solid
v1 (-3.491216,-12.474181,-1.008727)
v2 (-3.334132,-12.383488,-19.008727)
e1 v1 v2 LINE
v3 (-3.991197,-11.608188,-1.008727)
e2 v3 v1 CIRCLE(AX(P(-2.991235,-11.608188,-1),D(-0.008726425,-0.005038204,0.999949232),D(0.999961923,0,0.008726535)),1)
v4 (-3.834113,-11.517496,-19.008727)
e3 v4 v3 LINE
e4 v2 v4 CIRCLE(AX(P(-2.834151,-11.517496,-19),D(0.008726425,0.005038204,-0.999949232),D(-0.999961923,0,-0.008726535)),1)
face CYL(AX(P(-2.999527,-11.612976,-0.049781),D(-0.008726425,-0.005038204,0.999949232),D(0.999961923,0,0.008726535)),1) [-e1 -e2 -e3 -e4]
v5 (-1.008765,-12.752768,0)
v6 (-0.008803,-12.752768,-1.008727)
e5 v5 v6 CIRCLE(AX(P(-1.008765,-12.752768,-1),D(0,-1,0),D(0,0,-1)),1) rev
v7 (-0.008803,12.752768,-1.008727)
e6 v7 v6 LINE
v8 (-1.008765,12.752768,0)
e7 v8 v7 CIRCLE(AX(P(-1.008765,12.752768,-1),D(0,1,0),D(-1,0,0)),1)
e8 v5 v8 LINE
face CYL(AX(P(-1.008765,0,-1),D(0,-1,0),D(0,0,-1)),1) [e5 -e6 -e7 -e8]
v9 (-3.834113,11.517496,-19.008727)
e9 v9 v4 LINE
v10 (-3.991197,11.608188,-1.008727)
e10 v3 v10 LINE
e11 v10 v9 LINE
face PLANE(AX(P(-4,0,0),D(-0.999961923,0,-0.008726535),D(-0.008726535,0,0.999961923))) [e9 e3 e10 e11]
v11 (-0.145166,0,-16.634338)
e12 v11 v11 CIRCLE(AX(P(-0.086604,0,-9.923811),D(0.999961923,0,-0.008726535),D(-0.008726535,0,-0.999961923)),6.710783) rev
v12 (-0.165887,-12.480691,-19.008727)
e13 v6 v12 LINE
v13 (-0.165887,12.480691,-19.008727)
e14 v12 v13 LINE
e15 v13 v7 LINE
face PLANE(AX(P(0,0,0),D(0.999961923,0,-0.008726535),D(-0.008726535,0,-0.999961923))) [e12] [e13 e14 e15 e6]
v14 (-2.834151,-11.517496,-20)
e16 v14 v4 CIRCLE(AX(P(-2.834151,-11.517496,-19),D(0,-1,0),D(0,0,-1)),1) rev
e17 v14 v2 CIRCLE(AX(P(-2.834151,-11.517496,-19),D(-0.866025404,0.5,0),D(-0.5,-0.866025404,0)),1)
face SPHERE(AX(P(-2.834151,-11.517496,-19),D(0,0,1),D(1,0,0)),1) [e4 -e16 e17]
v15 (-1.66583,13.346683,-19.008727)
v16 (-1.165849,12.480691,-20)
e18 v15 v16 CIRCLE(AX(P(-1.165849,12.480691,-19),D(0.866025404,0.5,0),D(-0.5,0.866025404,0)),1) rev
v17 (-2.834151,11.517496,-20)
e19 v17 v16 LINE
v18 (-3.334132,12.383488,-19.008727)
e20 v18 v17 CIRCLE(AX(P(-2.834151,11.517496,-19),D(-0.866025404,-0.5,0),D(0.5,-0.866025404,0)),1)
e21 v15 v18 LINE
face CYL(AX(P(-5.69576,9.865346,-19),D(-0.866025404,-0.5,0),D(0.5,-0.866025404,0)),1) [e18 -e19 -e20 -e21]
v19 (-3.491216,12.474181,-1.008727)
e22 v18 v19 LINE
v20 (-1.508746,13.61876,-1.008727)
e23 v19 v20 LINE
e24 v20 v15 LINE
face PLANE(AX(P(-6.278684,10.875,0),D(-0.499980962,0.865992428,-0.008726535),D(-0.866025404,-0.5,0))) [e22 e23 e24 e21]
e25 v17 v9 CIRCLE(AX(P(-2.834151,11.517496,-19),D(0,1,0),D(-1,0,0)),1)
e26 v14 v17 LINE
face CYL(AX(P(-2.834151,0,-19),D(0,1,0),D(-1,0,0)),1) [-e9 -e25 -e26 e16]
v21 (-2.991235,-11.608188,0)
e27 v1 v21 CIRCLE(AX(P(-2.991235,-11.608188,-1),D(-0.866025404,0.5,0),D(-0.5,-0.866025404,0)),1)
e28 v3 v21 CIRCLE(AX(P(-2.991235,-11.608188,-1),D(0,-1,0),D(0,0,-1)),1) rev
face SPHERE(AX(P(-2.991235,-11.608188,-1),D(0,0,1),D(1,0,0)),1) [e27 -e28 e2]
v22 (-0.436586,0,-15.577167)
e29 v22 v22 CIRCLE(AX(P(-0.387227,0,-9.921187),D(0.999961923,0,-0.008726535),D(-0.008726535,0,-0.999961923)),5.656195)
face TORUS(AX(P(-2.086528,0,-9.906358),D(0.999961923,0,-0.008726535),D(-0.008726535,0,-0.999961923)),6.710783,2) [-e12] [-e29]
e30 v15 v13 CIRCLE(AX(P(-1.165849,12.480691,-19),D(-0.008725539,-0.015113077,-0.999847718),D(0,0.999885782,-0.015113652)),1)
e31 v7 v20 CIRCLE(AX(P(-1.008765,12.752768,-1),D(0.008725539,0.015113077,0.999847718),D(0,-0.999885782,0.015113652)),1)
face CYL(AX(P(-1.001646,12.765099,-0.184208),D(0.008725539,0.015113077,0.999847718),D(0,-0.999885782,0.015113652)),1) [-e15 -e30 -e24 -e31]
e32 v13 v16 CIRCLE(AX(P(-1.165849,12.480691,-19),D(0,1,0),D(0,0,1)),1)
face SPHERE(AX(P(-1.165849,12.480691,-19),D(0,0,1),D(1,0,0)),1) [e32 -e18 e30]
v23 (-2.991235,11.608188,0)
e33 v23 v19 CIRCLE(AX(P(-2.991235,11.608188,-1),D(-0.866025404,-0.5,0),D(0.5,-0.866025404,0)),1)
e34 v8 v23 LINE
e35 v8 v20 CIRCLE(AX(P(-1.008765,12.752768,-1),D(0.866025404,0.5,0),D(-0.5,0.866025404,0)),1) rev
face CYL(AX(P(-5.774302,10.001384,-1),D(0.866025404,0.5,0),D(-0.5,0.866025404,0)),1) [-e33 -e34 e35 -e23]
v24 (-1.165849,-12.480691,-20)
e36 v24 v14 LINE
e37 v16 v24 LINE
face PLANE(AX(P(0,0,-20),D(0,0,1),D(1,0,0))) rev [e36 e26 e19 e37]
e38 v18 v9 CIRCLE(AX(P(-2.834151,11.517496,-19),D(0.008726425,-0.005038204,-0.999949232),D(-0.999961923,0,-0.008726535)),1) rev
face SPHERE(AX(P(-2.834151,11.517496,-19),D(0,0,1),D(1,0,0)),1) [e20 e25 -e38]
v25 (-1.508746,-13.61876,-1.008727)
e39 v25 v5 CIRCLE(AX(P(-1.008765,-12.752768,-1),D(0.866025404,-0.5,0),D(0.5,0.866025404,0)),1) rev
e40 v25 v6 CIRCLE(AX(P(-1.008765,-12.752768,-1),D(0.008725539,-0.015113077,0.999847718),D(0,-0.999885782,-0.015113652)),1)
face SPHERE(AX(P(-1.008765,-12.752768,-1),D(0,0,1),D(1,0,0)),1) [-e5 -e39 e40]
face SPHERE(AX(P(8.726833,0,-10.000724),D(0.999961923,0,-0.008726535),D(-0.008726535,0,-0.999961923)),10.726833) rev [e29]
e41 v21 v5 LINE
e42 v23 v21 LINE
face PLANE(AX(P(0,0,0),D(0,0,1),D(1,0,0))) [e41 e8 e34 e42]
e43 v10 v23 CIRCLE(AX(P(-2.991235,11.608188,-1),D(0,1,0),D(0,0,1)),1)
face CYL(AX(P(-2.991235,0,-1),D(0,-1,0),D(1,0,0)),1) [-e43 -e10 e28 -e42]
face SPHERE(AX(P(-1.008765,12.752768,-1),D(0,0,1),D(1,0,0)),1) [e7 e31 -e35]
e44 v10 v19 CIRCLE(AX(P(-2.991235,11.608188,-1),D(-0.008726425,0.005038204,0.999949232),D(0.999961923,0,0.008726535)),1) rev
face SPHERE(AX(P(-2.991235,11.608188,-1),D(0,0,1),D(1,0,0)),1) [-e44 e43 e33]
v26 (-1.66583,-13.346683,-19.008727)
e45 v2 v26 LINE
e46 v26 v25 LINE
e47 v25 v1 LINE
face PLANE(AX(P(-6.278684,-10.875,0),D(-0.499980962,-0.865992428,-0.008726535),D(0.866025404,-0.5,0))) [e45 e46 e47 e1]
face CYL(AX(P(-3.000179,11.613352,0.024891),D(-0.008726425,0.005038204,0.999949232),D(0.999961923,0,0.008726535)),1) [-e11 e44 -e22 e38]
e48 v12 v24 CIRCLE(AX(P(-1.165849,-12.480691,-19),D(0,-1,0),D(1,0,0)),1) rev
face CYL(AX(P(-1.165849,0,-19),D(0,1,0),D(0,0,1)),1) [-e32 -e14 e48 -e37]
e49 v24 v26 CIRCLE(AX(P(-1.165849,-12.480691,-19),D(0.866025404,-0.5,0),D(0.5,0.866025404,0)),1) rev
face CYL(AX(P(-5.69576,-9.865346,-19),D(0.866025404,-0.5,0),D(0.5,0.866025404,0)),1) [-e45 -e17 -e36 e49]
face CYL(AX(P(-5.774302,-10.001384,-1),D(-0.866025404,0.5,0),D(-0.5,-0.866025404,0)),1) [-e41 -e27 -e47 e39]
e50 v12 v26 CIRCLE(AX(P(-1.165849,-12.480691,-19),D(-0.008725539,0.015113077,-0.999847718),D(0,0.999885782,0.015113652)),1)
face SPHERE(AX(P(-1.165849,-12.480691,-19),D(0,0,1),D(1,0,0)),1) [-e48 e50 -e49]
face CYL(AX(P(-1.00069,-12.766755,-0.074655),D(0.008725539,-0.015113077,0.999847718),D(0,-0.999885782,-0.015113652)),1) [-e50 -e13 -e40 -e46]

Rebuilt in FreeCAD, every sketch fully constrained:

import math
import FreeCAD as App
import Part
import Sketcher
Q = App.Units.Quantity


def edges_at(feature, points):
    """Names of the edges that pass closest to the given points."""
    edges = feature.Shape.Edges
    near = lambda p: min(range(len(edges)), key=lambda i: edges[i].distToShape(Part.Vertex(*p))[0])
    return sorted({f"Edge{near(p) + 1}" for p in points})


def faces_at(feature, points):
    """Names of the faces that lie closest to the given points."""
    faces = feature.Shape.Faces
    near = lambda p: min(range(len(faces)), key=lambda i: faces[i].distToShape(Part.Vertex(*p))[0])
    return sorted({f"Face{near(p) + 1}" for p in points})

doc = App.newDocument("Part")
params = doc.addObject("Spreadsheet::Sheet", "Params")
for row, (alias, value) in enumerate([
    ("sketch1_height", "29 mm"),
    ("pad1_length", "20 mm"),
    ("draft_angle", "0.5 deg"),
    ("fillet_radius", "1 mm"),
    ("groove_angle", "360 deg"),
    ("fillet2_radius", "2 mm"),
], start=1):
    params.set(f"A{row}", alias)
    params.set(f"B{row}", "=" + value)
    params.setAlias(f"B{row}", alias)

body = doc.addObject("PartDesign::Body", "Body")

# Sketch on XY plane
sketch1 = body.newObject("Sketcher::SketchObject", "Sketch")
sketch1.AttachmentSupport = (doc.getObject("XY_Plane"), [""])
sketch1.MapMode = "FlatFace"
sketch1.addGeometry([
    Part.LineSegment(App.Vector(-4, 12.2, 0), App.Vector(-4, -12.2, 0)),
    Part.LineSegment(App.Vector(-4, -12.2, 0), App.Vector(0, -14.5, 0)),
    Part.LineSegment(App.Vector(0, -14.5, 0), App.Vector(0, 14.5, 0)),
    Part.LineSegment(App.Vector(0, 14.5, 0), App.Vector(-4, 12.2, 0)),
], False)
sketch1.addConstraint([
    Sketcher.Constraint("Coincident", 0, 2, 1, 1),
    Sketcher.Constraint("Coincident", 1, 2, 2, 1),
    Sketcher.Constraint("Coincident", 2, 2, 3, 1),
    Sketcher.Constraint("Coincident", 3, 2, 0, 1),
    Sketcher.Constraint("Vertical", 0),
    Sketcher.Constraint("Vertical", 2),
    Sketcher.Constraint("Symmetric", 1, 2, 2, 2, -1, 1),
    Sketcher.Constraint("Equal", 1, 3),
    Sketcher.Constraint("DistanceY", 2, 1, 2, 2, Q("29 mm")),
    Sketcher.Constraint("Angle", 1, Q("-30 deg")),
    Sketcher.Constraint("DistanceX", 0, 2, -1, 1, Q("4 mm")),
])
sketch1.setExpression("Constraints[8]", "Params.sketch1_height")
pad1 = body.newObject("PartDesign::Pad", "Pad")
pad1.Profile = sketch1
pad1.setExpression("Length", "Params.pad1_length")
pad1.Reversed = True
doc.recompute()

draft = body.newObject("PartDesign::Draft", "Draft")
draft.Base = (pad1, faces_at(pad1, [
    (-4, 0, -10),
    (-2, -13.345, -10),
    (0, 0, -10),
    (-2, 13.345, -10),
]))
draft.NeutralPlane = (doc.getObject("XY_Plane"), [""])
draft.setExpression("Angle", "Params.draft_angle")
draft.Reversed = True
doc.recompute()

fillet = body.newObject("PartDesign::Fillet", "Fillet")
fillet.Base = (draft, ["Edge1"])
fillet.UseAllEdges = True
fillet.setExpression("Radius", "Params.fillet_radius")

# Sketch on XZ plane
sketch2 = body.newObject("Sketcher::SketchObject", "Sketch001")
sketch2.AttachmentSupport = (doc.getObject("XZ_Plane"), [""])
sketch2.MapMode = "FlatFace"
sketch2.addGeometry([
    Part.ArcOfCircle(Part.Circle(App.Vector(9, -10, 0), App.Vector(0, 0, 1), 11), math.radians(0), math.radians(90)),
    Part.ArcOfCircle(Part.Circle(App.Vector(9, -10, 0), App.Vector(0, 0, 1), 11), math.radians(-90), math.radians(0)),
    Part.LineSegment(App.Vector(9, -21, 0), App.Vector(9, 1, 0)),
], False)
sketch2.addGeometry(Part.LineSegment(App.Vector(9, -21, 0), App.Vector(9, 1, 0)), True)  # axis
sketch2.addConstraint([
    Sketcher.Constraint("Tangent", 0, 1, 1, 2),
    Sketcher.Constraint("Coincident", 1, 1, 2, 1),
    Sketcher.Constraint("Coincident", 2, 2, 0, 2),
    Sketcher.Constraint("Vertical", 2),
    Sketcher.Constraint("Vertical", 3),
    Sketcher.Constraint("Coincident", 3, 1, 1, 1),
    Sketcher.Constraint("Equal", 0, 1),
    Sketcher.Constraint("Horizontal", 1, 3, 0, 1),
    Sketcher.Constraint("Vertical", 0, 3, 1, 1),
    Sketcher.Constraint("Equal", 2, 3),
    Sketcher.Constraint("Radius", 0, Q("10.726833 mm")),
    Sketcher.Constraint("DistanceY", -1, 1, 2, 2, Q("0.726109 mm")),
    Sketcher.Constraint("DistanceX", -1, 1, 0, 3, Q("8.726833 mm")),
])
groove = body.newObject("PartDesign::Groove", "Groove")
groove.Profile = sketch2
groove.ReferenceAxis = (sketch2, ["Axis0"])
groove.setExpression("Angle", "Params.groove_angle")
doc.recompute()

fillet2 = body.newObject("PartDesign::Fillet", "Fillet001")
fillet2.Base = (groove, edges_at(groove, [(-0.14, 0, -16.038)]))
fillet2.setExpression("Radius", "Params.fillet2_radius")

doc.recompute()
